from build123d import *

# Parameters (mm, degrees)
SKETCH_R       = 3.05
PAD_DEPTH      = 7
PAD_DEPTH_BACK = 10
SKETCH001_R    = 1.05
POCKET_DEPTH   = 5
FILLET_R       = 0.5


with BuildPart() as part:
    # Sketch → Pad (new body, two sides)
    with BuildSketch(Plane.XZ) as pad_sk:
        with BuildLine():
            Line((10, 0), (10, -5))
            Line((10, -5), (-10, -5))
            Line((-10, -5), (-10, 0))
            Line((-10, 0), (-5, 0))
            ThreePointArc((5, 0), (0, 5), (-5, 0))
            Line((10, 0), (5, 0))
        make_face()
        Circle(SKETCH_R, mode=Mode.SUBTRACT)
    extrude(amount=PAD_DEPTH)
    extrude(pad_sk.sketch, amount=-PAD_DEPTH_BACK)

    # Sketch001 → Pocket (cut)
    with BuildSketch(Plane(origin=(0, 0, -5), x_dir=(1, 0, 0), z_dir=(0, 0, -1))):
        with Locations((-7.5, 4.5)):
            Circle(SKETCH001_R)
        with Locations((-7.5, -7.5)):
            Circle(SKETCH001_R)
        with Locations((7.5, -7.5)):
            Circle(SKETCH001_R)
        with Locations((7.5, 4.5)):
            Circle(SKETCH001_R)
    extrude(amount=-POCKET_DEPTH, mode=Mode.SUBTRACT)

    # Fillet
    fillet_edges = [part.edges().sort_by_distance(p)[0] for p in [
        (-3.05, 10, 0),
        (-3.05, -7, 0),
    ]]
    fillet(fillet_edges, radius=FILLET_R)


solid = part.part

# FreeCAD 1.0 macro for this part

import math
import FreeCAD as App
import Part
import Sketcher

V = App.Vector


def edges_at(feature, points):
    """Names of the edges that pass closest to the given points."""
    edges = feature.Shape.Edges
    near = lambda p: min(range(len(edges)), key=lambda i: edges[i].distToShape(Part.Vertex(*p))[0])
    return sorted({f"Edge{near(p) + 1}" for p in points})

doc = App.newDocument("Part")
params = doc.addObject("Spreadsheet::Sheet", "Params")
for row, (alias, value) in enumerate([
    ("sketch1_radius", "5 mm"),
    ("sketch1_diameter", "6.1 mm"),
    ("sketch1_width", "5 mm"),
    ("pad1_length", "7 mm"),
    ("pad1_length2", "10 mm"),
    ("sketch2_diameter", "2.1 mm"),
    ("pocket1_length", "5 mm"),
    ("fillet_radius", "0.5 mm"),
], start=1):
    params.set(f"A{row}", alias)
    params.set(f"B{row}", "=" + value)
    params.setAlias(f"B{row}", alias)

body = doc.addObject("PartDesign::Body", "Body")

sketch1 = body.newObject("Sketcher::SketchObject", "Sketch")
sketch1.AttachmentSupport = (doc.getObject("XZ_Plane"), [""])
sketch1.MapMode = "FlatFace"
sketch1.addGeometry(Part.LineSegment(V(10, -5, 0), V(10, 0, 0)), False)
sketch1.addGeometry(Part.LineSegment(V(10, 0, 0), V(5, 0, 0)), False)
sketch1.addGeometry(Part.ArcOfCircle(Part.Circle(V(0, 0, 0), V(0, 0, 1), 5), math.radians(0), math.radians(180)), False)
sketch1.addGeometry(Part.LineSegment(V(-5, 0, 0), V(-10, 0, 0)), False)
sketch1.addGeometry(Part.LineSegment(V(-10, 0, 0), V(-10, -5, 0)), False)
sketch1.addGeometry(Part.LineSegment(V(-10, -5, 0), V(10, -5, 0)), False)
sketch1.addGeometry(Part.Circle(V(0, 0, 0), V(0, 0, 1), 3), False)
sketch1.addConstraint(Sketcher.Constraint("Coincident", 0, 2, 1, 1))
sketch1.addConstraint(Sketcher.Constraint("Coincident", 1, 2, 2, 1))
sketch1.addConstraint(Sketcher.Constraint("Coincident", 2, 2, 3, 1))
sketch1.addConstraint(Sketcher.Constraint("Coincident", 3, 2, 4, 1))
sketch1.addConstraint(Sketcher.Constraint("Coincident", 4, 2, 5, 1))
sketch1.addConstraint(Sketcher.Constraint("Coincident", 5, 2, 0, 1))
sketch1.addConstraint(Sketcher.Constraint("Vertical", 0))
sketch1.addConstraint(Sketcher.Constraint("Horizontal", 1))
sketch1.addConstraint(Sketcher.Constraint("Horizontal", 3))
sketch1.addConstraint(Sketcher.Constraint("Vertical", 4))
sketch1.addConstraint(Sketcher.Constraint("Horizontal", 5))
sketch1.addConstraint(Sketcher.Constraint("Coincident", 2, 3, -1, 1))
sketch1.addConstraint(Sketcher.Constraint("Coincident", 6, 3, -1, 1))
sketch1.addConstraint(Sketcher.Constraint("Symmetric", 0, 2, 3, 2, -1, 1))
sketch1.addConstraint(Sketcher.Constraint("PointOnObject", 0, 2, -1))
sketch1.addConstraint(Sketcher.Constraint("Equal", 3, 0))
sketch1.addConstraint(Sketcher.Constraint("Radius", 2, 5.0))
sketch1.addConstraint(Sketcher.Constraint("Diameter", 6, 6.1))
sketch1.addConstraint(Sketcher.Constraint("DistanceX", 1, 2, 1, 1, 5.0))
sketch1.setExpression("Constraints[16]", "Params.sketch1_radius")
sketch1.setExpression("Constraints[17]", "Params.sketch1_diameter")
sketch1.setExpression("Constraints[18]", "Params.sketch1_width")
pad1 = body.newObject("PartDesign::Pad", "Pad")
pad1.Profile = sketch1
pad1.Type = "TwoLengths"
pad1.setExpression("Length", "Params.pad1_length")
pad1.setExpression("Length2", "Params.pad1_length2")

sketch2 = body.newObject("Sketcher::SketchObject", "Sketch001")
sketch2.AttachmentSupport = (doc.getObject("XY_Plane"), [""])
sketch2.MapMode = "FlatFace"
sketch2.AttachmentOffset = App.Placement(V(0, 0, -5), App.Rotation())
sketch2.addGeometry(Part.Circle(V(-7.5, -4.5, 0), V(0, 0, 1), 1.1), False)
sketch2.addGeometry(Part.Circle(V(-7.5, 7.5, 0), V(0, 0, 1), 1.1), False)
sketch2.addGeometry(Part.Circle(V(7.5, 7.5, 0), V(0, 0, 1), 1.1), False)
sketch2.addGeometry(Part.Circle(V(7.5, -4.5, 0), V(0, 0, 1), 1.1), False)
sketch2.addConstraint(Sketcher.Constraint("Equal", 0, 1))
sketch2.addConstraint(Sketcher.Constraint("Equal", 1, 2))
sketch2.addConstraint(Sketcher.Constraint("Equal", 2, 3))
sketch2.addConstraint(Sketcher.Constraint("Symmetric", 1, 3, 2, 3, -2))
sketch2.addConstraint(Sketcher.Constraint("Symmetric", 0, 3, 3, 3, -2))
sketch2.addConstraint(Sketcher.Constraint("Vertical", 0, 3, 1, 3))
sketch2.addConstraint(Sketcher.Constraint("Diameter", 0, 2.1))
sketch2.addConstraint(Sketcher.Constraint("DistanceY", 0, 3, 1, 3, 12.0))
sketch2.addConstraint(Sketcher.Constraint("DistanceX", 1, 3, 2, 3, 15.0))
sketch2.addConstraint(Sketcher.Constraint("DistanceY", 0, 3, -1, 1, 4.5))
sketch2.setExpression("Constraints[6]", "Params.sketch2_diameter")
pocket1 = body.newObject("PartDesign::Pocket", "Pocket")
pocket1.Profile = sketch2
pocket1.setExpression("Length", "Params.pocket1_length")
pocket1.Reversed = True
doc.recompute()

fillet = body.newObject("PartDesign::Fillet", "Fillet")
fillet.Base = (pocket1, edges_at(pocket1, [(-3.05, 10, 0), (-3.05, -7, 0)]))
fillet.setExpression("Radius", "Params.fillet_radius")

doc.recompute()
